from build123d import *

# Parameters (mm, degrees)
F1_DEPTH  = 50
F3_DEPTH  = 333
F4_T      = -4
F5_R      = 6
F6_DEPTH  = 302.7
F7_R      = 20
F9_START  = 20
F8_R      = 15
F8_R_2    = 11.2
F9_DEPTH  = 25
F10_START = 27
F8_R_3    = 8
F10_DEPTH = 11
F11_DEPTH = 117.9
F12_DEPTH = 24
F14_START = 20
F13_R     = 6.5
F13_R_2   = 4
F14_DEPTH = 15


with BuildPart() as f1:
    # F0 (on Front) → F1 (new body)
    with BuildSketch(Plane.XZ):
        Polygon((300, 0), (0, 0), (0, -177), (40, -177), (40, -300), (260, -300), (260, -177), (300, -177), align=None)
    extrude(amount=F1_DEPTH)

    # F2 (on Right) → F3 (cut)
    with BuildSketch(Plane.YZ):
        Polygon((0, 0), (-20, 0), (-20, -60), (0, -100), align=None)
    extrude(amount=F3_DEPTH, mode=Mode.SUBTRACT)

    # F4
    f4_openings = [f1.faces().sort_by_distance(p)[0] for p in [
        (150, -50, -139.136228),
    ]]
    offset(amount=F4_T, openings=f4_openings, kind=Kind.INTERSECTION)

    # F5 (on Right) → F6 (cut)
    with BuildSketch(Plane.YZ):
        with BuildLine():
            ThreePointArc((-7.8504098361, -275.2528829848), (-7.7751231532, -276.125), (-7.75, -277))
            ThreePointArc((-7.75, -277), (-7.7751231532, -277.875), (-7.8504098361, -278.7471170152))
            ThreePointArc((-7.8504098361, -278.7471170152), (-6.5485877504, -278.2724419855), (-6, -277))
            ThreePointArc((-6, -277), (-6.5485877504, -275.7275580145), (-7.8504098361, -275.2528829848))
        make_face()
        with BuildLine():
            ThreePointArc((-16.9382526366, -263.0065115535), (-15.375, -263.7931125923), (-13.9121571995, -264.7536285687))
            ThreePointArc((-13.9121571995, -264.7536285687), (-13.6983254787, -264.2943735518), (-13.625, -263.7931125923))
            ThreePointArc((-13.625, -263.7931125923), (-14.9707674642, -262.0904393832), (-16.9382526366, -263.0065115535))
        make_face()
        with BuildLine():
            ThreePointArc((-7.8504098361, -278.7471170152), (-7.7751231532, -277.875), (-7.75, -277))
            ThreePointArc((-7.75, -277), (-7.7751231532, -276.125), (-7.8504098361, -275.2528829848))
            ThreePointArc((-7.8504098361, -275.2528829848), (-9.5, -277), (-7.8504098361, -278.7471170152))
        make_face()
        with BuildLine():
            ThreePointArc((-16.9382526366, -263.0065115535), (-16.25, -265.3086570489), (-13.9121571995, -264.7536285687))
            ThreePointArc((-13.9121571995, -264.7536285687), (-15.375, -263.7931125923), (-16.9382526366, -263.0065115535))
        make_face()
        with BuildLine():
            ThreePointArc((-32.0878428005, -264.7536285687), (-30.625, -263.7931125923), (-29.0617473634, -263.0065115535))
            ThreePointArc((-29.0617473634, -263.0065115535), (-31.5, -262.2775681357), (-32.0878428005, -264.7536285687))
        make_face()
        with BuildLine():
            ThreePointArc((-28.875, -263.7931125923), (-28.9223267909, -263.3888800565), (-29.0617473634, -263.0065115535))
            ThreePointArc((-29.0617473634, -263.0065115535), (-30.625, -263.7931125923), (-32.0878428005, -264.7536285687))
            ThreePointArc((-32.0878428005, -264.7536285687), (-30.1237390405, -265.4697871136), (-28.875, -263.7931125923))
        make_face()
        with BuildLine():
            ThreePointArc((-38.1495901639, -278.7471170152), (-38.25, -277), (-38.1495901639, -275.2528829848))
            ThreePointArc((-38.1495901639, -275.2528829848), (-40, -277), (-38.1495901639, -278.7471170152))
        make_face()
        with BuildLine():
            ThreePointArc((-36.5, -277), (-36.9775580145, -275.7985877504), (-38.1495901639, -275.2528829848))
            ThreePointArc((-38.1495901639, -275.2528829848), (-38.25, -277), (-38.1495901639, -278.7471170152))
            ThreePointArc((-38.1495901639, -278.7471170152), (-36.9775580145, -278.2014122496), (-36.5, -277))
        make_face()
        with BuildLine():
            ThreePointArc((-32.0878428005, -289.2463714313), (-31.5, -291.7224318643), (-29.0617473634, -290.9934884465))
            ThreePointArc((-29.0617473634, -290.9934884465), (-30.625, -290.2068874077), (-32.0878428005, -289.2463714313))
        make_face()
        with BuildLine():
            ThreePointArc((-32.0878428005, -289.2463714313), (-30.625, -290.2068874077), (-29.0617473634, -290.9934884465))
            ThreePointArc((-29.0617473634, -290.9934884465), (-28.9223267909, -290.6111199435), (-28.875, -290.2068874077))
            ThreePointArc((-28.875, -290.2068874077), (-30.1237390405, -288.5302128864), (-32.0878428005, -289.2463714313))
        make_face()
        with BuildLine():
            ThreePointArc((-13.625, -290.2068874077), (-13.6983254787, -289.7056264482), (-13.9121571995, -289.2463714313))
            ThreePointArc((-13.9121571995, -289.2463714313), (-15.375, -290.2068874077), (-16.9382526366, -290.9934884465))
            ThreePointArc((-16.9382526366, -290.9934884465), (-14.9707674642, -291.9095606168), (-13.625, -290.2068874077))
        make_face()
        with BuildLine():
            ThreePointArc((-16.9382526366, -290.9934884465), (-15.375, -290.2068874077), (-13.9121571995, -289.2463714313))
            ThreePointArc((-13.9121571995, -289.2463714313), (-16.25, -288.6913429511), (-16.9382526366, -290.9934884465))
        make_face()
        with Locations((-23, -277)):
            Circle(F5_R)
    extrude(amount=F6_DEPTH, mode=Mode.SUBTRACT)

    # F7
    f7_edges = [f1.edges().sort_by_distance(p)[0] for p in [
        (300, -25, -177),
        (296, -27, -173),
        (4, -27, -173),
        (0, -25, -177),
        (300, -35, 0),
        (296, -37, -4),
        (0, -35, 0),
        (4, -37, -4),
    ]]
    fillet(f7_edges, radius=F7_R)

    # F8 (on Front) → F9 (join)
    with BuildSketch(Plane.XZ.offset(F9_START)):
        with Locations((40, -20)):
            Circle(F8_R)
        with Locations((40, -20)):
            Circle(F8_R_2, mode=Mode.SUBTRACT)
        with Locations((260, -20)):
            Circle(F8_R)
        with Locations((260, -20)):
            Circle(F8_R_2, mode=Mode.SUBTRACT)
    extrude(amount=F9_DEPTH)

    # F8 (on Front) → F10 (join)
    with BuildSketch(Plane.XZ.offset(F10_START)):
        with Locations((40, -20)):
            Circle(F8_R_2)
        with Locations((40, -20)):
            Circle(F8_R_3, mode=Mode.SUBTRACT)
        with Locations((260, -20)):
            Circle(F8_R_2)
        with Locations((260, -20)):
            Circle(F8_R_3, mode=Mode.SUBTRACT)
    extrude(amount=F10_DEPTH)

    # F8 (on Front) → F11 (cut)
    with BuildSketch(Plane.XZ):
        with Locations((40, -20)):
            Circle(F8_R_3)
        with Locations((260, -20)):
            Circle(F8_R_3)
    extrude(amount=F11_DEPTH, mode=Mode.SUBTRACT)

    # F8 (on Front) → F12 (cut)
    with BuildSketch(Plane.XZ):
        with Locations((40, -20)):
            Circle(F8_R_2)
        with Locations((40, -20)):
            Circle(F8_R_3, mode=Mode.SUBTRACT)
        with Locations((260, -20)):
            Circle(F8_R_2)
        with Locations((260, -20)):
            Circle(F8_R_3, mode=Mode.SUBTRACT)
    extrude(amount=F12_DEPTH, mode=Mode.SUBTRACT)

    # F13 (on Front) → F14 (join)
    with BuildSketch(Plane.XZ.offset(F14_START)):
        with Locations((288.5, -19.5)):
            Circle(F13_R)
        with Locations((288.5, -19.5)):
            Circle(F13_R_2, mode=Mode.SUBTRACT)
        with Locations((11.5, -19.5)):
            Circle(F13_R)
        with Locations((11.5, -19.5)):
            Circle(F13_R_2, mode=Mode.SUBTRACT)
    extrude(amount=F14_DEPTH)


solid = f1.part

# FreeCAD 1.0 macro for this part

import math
import FreeCAD as App
import Part
import Sketcher
from FreeCAD import Vector


def edges_at(feature, points):
    """Names of the edges that pass closest to the given points."""
    edges = feature.Shape.Edges
    near = lambda p: min(range(len(edges)), key=lambda i: edges[i].distToShape(Part.Vertex(*p))[0])
    return sorted({f"Edge{near(p) + 1}" for p in points})


def faces_at(feature, points):
    """Names of the faces that lie closest to the given points."""
    faces = feature.Shape.Faces
    near = lambda p: min(range(len(faces)), key=lambda i: faces[i].distToShape(Part.Vertex(*p))[0])
    return sorted({f"Face{near(p) + 1}" for p in points})

doc = App.newDocument("Part")
body = doc.addObject("PartDesign::Body", "Body")

sketch1 = doc.addObject("Sketcher::SketchObject", "Sketch")
body.addObject(sketch1)
sketch1.AttachmentSupport = (doc.XZ_Plane, [""])
sketch1.MapMode = "FlatFace"
sketch1.addGeometry([
    Part.LineSegment(Vector(300, 0, 0), Vector(0, 0, 0)),
    Part.LineSegment(Vector(0, 0, 0), Vector(0, -177, 0)),
    Part.LineSegment(Vector(0, -177, 0), Vector(40, -177, 0)),
    Part.LineSegment(Vector(40, -177, 0), Vector(40, -300, 0)),
    Part.LineSegment(Vector(40, -300, 0), Vector(260, -300, 0)),
    Part.LineSegment(Vector(260, -300, 0), Vector(260, -177, 0)),
    Part.LineSegment(Vector(260, -177, 0), Vector(300, -177, 0)),
    Part.LineSegment(Vector(300, -177, 0), Vector(300, 0, 0)),
], False)
sketch1.addConstraint([
    Sketcher.Constraint("Coincident", 0, 2, 1, 1),
    Sketcher.Constraint("Coincident", 1, 2, 2, 1),
    Sketcher.Constraint("Coincident", 2, 2, 3, 1),
    Sketcher.Constraint("Coincident", 3, 2, 4, 1),
    Sketcher.Constraint("Coincident", 4, 2, 5, 1),
    Sketcher.Constraint("Coincident", 5, 2, 6, 1),
    Sketcher.Constraint("Coincident", 6, 2, 7, 1),
    Sketcher.Constraint("Coincident", 7, 2, 0, 1),
    Sketcher.Constraint("Horizontal", 0),
    Sketcher.Constraint("Vertical", 1),
    Sketcher.Constraint("Horizontal", 2),
    Sketcher.Constraint("Vertical", 3),
    Sketcher.Constraint("Horizontal", 4),
    Sketcher.Constraint("Vertical", 5),
    Sketcher.Constraint("Horizontal", 6),
    Sketcher.Constraint("Vertical", 7),
    Sketcher.Constraint("Coincident", 0, 2, -1, 1),
    Sketcher.Constraint("Horizontal", 2, 2, 5, 2),
    Sketcher.Constraint("Equal", 2, 6),
    Sketcher.Constraint("DistanceX", 0, 2, 0, 1, 300.0),
    Sketcher.Constraint("DistanceX", 2, 1, 2, 2, 40.0),
    Sketcher.Constraint("DistanceY", 1, 2, 1, 1, 177.0),
    Sketcher.Constraint("DistanceY", 3, 2, 3, 1, 123.0),
])
pad1 = doc.addObject("PartDesign::Pad", "Pad")
body.addObject(pad1)
pad1.Profile = sketch1
pad1.Length = 50

sketch2 = doc.addObject("Sketcher::SketchObject", "Sketch001")
body.addObject(sketch2)
sketch2.AttachmentSupport = (doc.YZ_Plane, [""])
sketch2.MapMode = "FlatFace"
sketch2.addGeometry([
    Part.LineSegment(Vector(0, 0, 0), Vector(-20, 0, 0)),
    Part.LineSegment(Vector(-20, 0, 0), Vector(-20, -60, 0)),
    Part.LineSegment(Vector(-20, -60, 0), Vector(0, -100, 0)),
    Part.LineSegment(Vector(0, -100, 0), Vector(0, 0, 0)),
], False)
sketch2.addConstraint([
    Sketcher.Constraint("Coincident", 0, 2, 1, 1),
    Sketcher.Constraint("Coincident", 1, 2, 2, 1),
    Sketcher.Constraint("Coincident", 2, 2, 3, 1),
    Sketcher.Constraint("Coincident", 3, 2, 0, 1),
    Sketcher.Constraint("Horizontal", 0),
    Sketcher.Constraint("Vertical", 1),
    Sketcher.Constraint("Vertical", 3),
    Sketcher.Constraint("Coincident", 3, 2, -1, 1),
    Sketcher.Constraint("DistanceX", 0, 2, 0, 1, 20.0),
    Sketcher.Constraint("DistanceY", 1, 2, 1, 1, 60.0),
    Sketcher.Constraint("DistanceY", 3, 1, 3, 2, 100.0),
])
pocket1 = doc.addObject("PartDesign::Pocket", "Pocket")
body.addObject(pocket1)
pocket1.Profile = sketch2
pocket1.Length = 333
pocket1.Reversed = True
doc.recompute()

thickness = doc.addObject("PartDesign::Thickness", "Thickness")
body.addObject(thickness)
thickness.Base = (pocket1, faces_at(pocket1, [(150, -50, -150)]))
thickness.Value = 4
thickness.Reversed = True
thickness.Join = "Intersection"

sketch3 = doc.addObject("Sketcher::SketchObject", "Sketch002")
body.addObject(sketch3)
sketch3.AttachmentSupport = (doc.YZ_Plane, [""])
sketch3.MapMode = "FlatFace"
sketch3.addGeometry([
    Part.ArcOfCircle(Part.Circle(Vector(-7.8, -277, 0), Vector(0, 0, 1), 1.8), math.radians(-93), math.radians(0)),
    Part.ArcOfCircle(Part.Circle(Vector(-7.8, -277, 0), Vector(0, 0, 1), 1.8), math.radians(0), math.radians(93)),
    Part.ArcOfCircle(Part.Circle(Vector(-7.8, -277, 0), Vector(0, 0, 1), 1.8), math.radians(93), math.radians(267)),
    Part.ArcOfCircle(Part.Circle(Vector(-15.4, -263.8, 0), Vector(0, 0, 1), 1.8), math.radians(-33), math.radians(0)),
    Part.ArcOfCircle(Part.Circle(Vector(-15.4, -263.8, 0), Vector(0, 0, 1), 1.8), math.radians(0), math.radians(153)),
    Part.ArcOfCircle(Part.Circle(Vector(-15.4, -263.8, 0), Vector(0, 0, 1), 1.8), math.radians(153), math.radians(327)),
    Part.ArcOfCircle(Part.Circle(Vector(-30.6, -263.8, 0), Vector(0, 0, 1), 1.8), math.radians(27), math.radians(213)),
    Part.ArcOfCircle(Part.Circle(Vector(-30.6, -263.8, 0), Vector(0, 0, 1), 1.8), math.radians(-147), math.radians(0)),
    Part.ArcOfCircle(Part.Circle(Vector(-30.6, -263.8, 0), Vector(0, 0, 1), 1.8), math.radians(0), math.radians(27)),
    Part.ArcOfCircle(Part.Circle(Vector(-38.2, -277, 0), Vector(0, 0, 1), 1.8), math.radians(87), math.radians(273)),
    Part.ArcOfCircle(Part.Circle(Vector(-38.2, -277, 0), Vector(0, 0, 1), 1.8), math.radians(-87), math.radians(0)),
    Part.ArcOfCircle(Part.Circle(Vector(-38.2, -277, 0), Vector(0, 0, 1), 1.8), math.radians(0), math.radians(87)),
    Part.ArcOfCircle(Part.Circle(Vector(-30.6, -290.2, 0), Vector(0, 0, 1), 1.8), math.radians(147), math.radians(333)),
    Part.ArcOfCircle(Part.Circle(Vector(-30.6, -290.2, 0), Vector(0, 0, 1), 1.8), math.radians(-27), math.radians(0)),
    Part.ArcOfCircle(Part.Circle(Vector(-30.6, -290.2, 0), Vector(0, 0, 1), 1.8), math.radians(0), math.radians(147)),
    Part.ArcOfCircle(Part.Circle(Vector(-15.4, -290.2, 0), Vector(0, 0, 1), 1.8), math.radians(0), math.radians(33)),
    Part.ArcOfCircle(Part.Circle(Vector(-15.4, -290.2, 0), Vector(0, 0, 1), 1.8), math.radians(33), math.radians(207)),
    Part.ArcOfCircle(Part.Circle(Vector(-15.4, -290.2, 0), Vector(0, 0, 1), 1.8), math.radians(-153), math.radians(0)),
    Part.Circle(Vector(-23, -277, 0), Vector(0, 0, 1), 6),
], False)
sketch3.addConstraint([
    Sketcher.Constraint("Tangent", 0, 2, 1, 1),
    Sketcher.Constraint("Tangent", 1, 2, 2, 1),
    Sketcher.Constraint("Tangent", 2, 2, 0, 1),
    Sketcher.Constraint("Tangent", 3, 2, 4, 1),
    Sketcher.Constraint("Tangent", 4, 2, 5, 1),
    Sketcher.Constraint("Tangent", 5, 2, 3, 1),
    Sketcher.Constraint("Tangent", 6, 2, 7, 1),
    Sketcher.Constraint("Tangent", 7, 2, 8, 1),
    Sketcher.Constraint("Tangent", 8, 2, 6, 1),
    Sketcher.Constraint("Tangent", 9, 2, 10, 1),
    Sketcher.Constraint("Tangent", 10, 2, 11, 1),
    Sketcher.Constraint("Tangent", 11, 2, 9, 1),
    Sketcher.Constraint("Tangent", 12, 2, 13, 1),
    Sketcher.Constraint("Tangent", 13, 2, 14, 1),
    Sketcher.Constraint("Tangent", 14, 2, 12, 1),
    Sketcher.Constraint("Tangent", 15, 2, 16, 1),
    Sketcher.Constraint("Tangent", 16, 2, 17, 1),
    Sketcher.Constraint("Tangent", 17, 2, 15, 1),
    Sketcher.Constraint("Equal", 2, 3),
    Sketcher.Constraint("Equal", 5, 6),
    Sketcher.Constraint("Equal", 8, 9),
    Sketcher.Constraint("Equal", 11, 12),
    Sketcher.Constraint("Equal", 14, 15),
    Sketcher.Constraint("Horizontal", 5, 3, 6, 3),
    Sketcher.Constraint("Horizontal", 2, 3, 9, 3),
    Sketcher.Constraint("Horizontal", 14, 3, 15, 3),
    Sketcher.Constraint("Horizontal", 11, 3, 18, 3),
    Sketcher.Constraint("Horizontal", 18, 3, 0, 2),
    Sketcher.Constraint("Horizontal", 8, 3, 3, 2),
    Sketcher.Constraint("Horizontal", 5, 2, 6, 2),
    Sketcher.Constraint("Horizontal", 3, 2, 7, 2),
    Sketcher.Constraint("Horizontal", 4, 2, 8, 2),
    Sketcher.Constraint("Horizontal", 2, 2, 9, 2),
    Sketcher.Constraint("Horizontal", 0, 2, 10, 2),
    Sketcher.Constraint("Horizontal", 1, 2, 11, 2),
    Sketcher.Constraint("Horizontal", 17, 3, 13, 2),
    Sketcher.Constraint("Horizontal", 14, 2, 15, 2),
    Sketcher.Constraint("Horizontal", 12, 2, 16, 2),
    Sketcher.Constraint("Horizontal", 13, 2, 17, 2),
    Sketcher.Constraint("Vertical", 8, 3, 12, 3),
    Sketcher.Constraint("Vertical", 5, 3, 15, 3),
    Sketcher.Constraint("Vertical", 1, 2, 2, 2),
    Sketcher.Constraint("Vertical", 8, 2, 12, 2),
    Sketcher.Constraint("Vertical", 6, 2, 14, 2),
    Sketcher.Constraint("Diameter", 18, 12.0),
    Sketcher.Constraint("Radius", 0, 1.75),
    Sketcher.Constraint("DistanceY", 0, 3, -1, 1, 277.0),
    Sketcher.Constraint("DistanceX", 18, 3, -1, 1, 23.0),
    Sketcher.Constraint("DistanceX", 0, 2, -1, 1, 6.0),
    Sketcher.Constraint("DistanceX", 10, 2, -1, 1, 36.5),
    Sketcher.Constraint("DistanceX", 13, 2, 15, 3, 13.5),
    Sketcher.Constraint("DistanceX", 3, 3, -1, 1, 15.375),
    Sketcher.Constraint("DistanceY", 3, 3, 4, 2, 0.786601),
    Sketcher.Constraint("DistanceX", 1, 2, -1, 1, 7.85041),
    Sketcher.Constraint("DistanceY", 4, 2, -1, 1, 263.006512),
    Sketcher.Constraint("DistanceY", 5, 2, -1, 1, 264.753629),
    Sketcher.Constraint("DistanceY", 12, 2, -1, 1, 290.993488),
])
pocket2 = doc.addObject("PartDesign::Pocket", "Pocket001")
body.addObject(pocket2)
pocket2.Profile = sketch3
pocket2.Length = 302.7
pocket2.Reversed = True
doc.recompute()

fillet = doc.addObject("PartDesign::Fillet", "Fillet")
body.addObject(fillet)
fillet.Base = (pocket2, edges_at(pocket2, [
    (300, -25, -177),
    (296, -27, -173),
    (4, -27, -173),
    (0, -25, -177),
    (300, -35, 0),
    (296, -37, -4),
    (0, -35, 0),
    (4, -37, -4),
]))
fillet.Radius = 20

sketch4 = doc.addObject("Sketcher::SketchObject", "Sketch003")
body.addObject(sketch4)
sketch4.AttachmentSupport = (doc.XZ_Plane, [""])
sketch4.MapMode = "FlatFace"
sketch4.AttachmentOffset = App.Placement(Vector(0, 0, 20), App.Rotation())
sketch4.addGeometry([
    Part.Circle(Vector(40, -20, 0), Vector(0, 0, 1), 15),
    Part.Circle(Vector(40, -20, 0), Vector(0, 0, 1), 11),
    Part.Circle(Vector(260, -20, 0), Vector(0, 0, 1), 15),
    Part.Circle(Vector(260, -20, 0), Vector(0, 0, 1), 11),
], False)
sketch4.addConstraint([
    Sketcher.Constraint("Coincident", 1, 3, 0, 3),
    Sketcher.Constraint("Coincident", 3, 3, 2, 3),
    Sketcher.Constraint("Equal", 0, 2),
    Sketcher.Constraint("Equal", 1, 3),
    Sketcher.Constraint("Horizontal", 1, 3, 2, 3),
    Sketcher.Constraint("Diameter", 0, 30.0),
    Sketcher.Constraint("Diameter", 1, 22.4),
    Sketcher.Constraint("DistanceX", -1, 1, 0, 3, 40.0),
    Sketcher.Constraint("DistanceY", 0, 3, -1, 1, 20.0),
    Sketcher.Constraint("DistanceX", -1, 1, 2, 3, 260.0),
])
pad2 = doc.addObject("PartDesign::Pad", "Pad001")
body.addObject(pad2)
pad2.Profile = sketch4
pad2.Length = 25

sketch5 = doc.addObject("Sketcher::SketchObject", "Sketch004")
body.addObject(sketch5)
sketch5.AttachmentSupport = (doc.XZ_Plane, [""])
sketch5.MapMode = "FlatFace"
sketch5.AttachmentOffset = App.Placement(Vector(0, 0, 27), App.Rotation())
sketch5.addGeometry([
    Part.Circle(Vector(40, -20, 0), Vector(0, 0, 1), 11),
    Part.Circle(Vector(40, -20, 0), Vector(0, 0, 1), 8),
    Part.Circle(Vector(260, -20, 0), Vector(0, 0, 1), 11),
    Part.Circle(Vector(260, -20, 0), Vector(0, 0, 1), 8),
], False)
sketch5.addConstraint([
    Sketcher.Constraint("Coincident", 1, 3, 0, 3),
    Sketcher.Constraint("Coincident", 3, 3, 2, 3),
    Sketcher.Constraint("Equal", 0, 2),
    Sketcher.Constraint("Equal", 1, 3),
    Sketcher.Constraint("Horizontal", 1, 3, 2, 3),
    Sketcher.Constraint("Diameter", 1, 16.0),
    Sketcher.Constraint("Diameter", 0, 22.4),
    Sketcher.Constraint("DistanceX", -1, 1, 0, 3, 40.0),
    Sketcher.Constraint("DistanceY", 0, 3, -1, 1, 20.0),
    Sketcher.Constraint("DistanceX", -1, 1, 2, 3, 260.0),
])
pad3 = doc.addObject("PartDesign::Pad", "Pad002")
body.addObject(pad3)
pad3.Profile = sketch5
pad3.Length = 11

sketch6 = doc.addObject("Sketcher::SketchObject", "Sketch005")
body.addObject(sketch6)
sketch6.AttachmentSupport = (doc.XZ_Plane, [""])
sketch6.MapMode = "FlatFace"
sketch6.addGeometry([
    Part.Circle(Vector(40, -20, 0), Vector(0, 0, 1), 8),
    Part.Circle(Vector(260, -20, 0), Vector(0, 0, 1), 8),
], False)
sketch6.addConstraint([
    Sketcher.Constraint("Equal", 0, 1),
    Sketcher.Constraint("Horizontal", 0, 3, 1, 3),
    Sketcher.Constraint("Diameter", 0, 16.0),
    Sketcher.Constraint("DistanceX", -1, 1, 0, 3, 40.0),
    Sketcher.Constraint("DistanceY", 0, 3, -1, 1, 20.0),
    Sketcher.Constraint("DistanceX", -1, 1, 1, 3, 260.0),
])
pocket3 = doc.addObject("PartDesign::Pocket", "Pocket002")
body.addObject(pocket3)
pocket3.Profile = sketch6
pocket3.Length = 117.9
pocket3.Reversed = True

sketch7 = doc.addObject("Sketcher::SketchObject", "Sketch006")
body.addObject(sketch7)
sketch7.AttachmentSupport = (doc.XZ_Plane, [""])
sketch7.MapMode = "FlatFace"
sketch7.addGeometry([
    Part.Circle(Vector(40, -20, 0), Vector(0, 0, 1), 11),
    Part.Circle(Vector(40, -20, 0), Vector(0, 0, 1), 8),
    Part.Circle(Vector(260, -20, 0), Vector(0, 0, 1), 11),
    Part.Circle(Vector(260, -20, 0), Vector(0, 0, 1), 8),
], False)
sketch7.addConstraint([
    Sketcher.Constraint("Coincident", 1, 3, 0, 3),
    Sketcher.Constraint("Coincident", 3, 3, 2, 3),
    Sketcher.Constraint("Equal", 0, 2),
    Sketcher.Constraint("Equal", 1, 3),
    Sketcher.Constraint("Horizontal", 1, 3, 2, 3),
    Sketcher.Constraint("Diameter", 1, 16.0),
    Sketcher.Constraint("Diameter", 0, 22.4),
    Sketcher.Constraint("DistanceX", -1, 1, 0, 3, 40.0),
    Sketcher.Constraint("DistanceY", 0, 3, -1, 1, 20.0),
    Sketcher.Constraint("DistanceX", -1, 1, 2, 3, 260.0),
])
pocket4 = doc.addObject("PartDesign::Pocket", "Pocket003")
body.addObject(pocket4)
pocket4.Profile = sketch7
pocket4.Length = 24
pocket4.Reversed = True

sketch8 = doc.addObject("Sketcher::SketchObject", "Sketch007")
body.addObject(sketch8)
sketch8.AttachmentSupport = (doc.XZ_Plane, [""])
sketch8.MapMode = "FlatFace"
sketch8.AttachmentOffset = App.Placement(Vector(0, 0, 20), App.Rotation())
sketch8.addGeometry([
    Part.Circle(Vector(288.5, -19.5, 0), Vector(0, 0, 1), 6.5),
    Part.Circle(Vector(288.5, -19.5, 0), Vector(0, 0, 1), 4),
    Part.Circle(Vector(11.5, -19.5, 0), Vector(0, 0, 1), 6.5),
    Part.Circle(Vector(11.5, -19.5, 0), Vector(0, 0, 1), 4),
], False)
sketch8.addConstraint([
    Sketcher.Constraint("Coincident", 1, 3, 0, 3),
    Sketcher.Constraint("Coincident", 3, 3, 2, 3),
    Sketcher.Constraint("Equal", 0, 2),
    Sketcher.Constraint("Equal", 1, 3),
    Sketcher.Constraint("Horizontal", 1, 3, 2, 3),
    Sketcher.Constraint("Diameter", 0, 13.0),
    Sketcher.Constraint("Diameter", 1, 8.0),
    Sketcher.Constraint("DistanceX", 2, 3, 0, 3, 277.0),
    Sketcher.Constraint("DistanceX", -1, 1, 0, 3, 288.5),
    Sketcher.Constraint("DistanceY", 0, 3, -1, 1, 19.5),
])
pad4 = doc.addObject("PartDesign::Pad", "Pad003")
body.addObject(pad4)
pad4.Profile = sketch8
pad4.Length = 15

doc.recompute()
